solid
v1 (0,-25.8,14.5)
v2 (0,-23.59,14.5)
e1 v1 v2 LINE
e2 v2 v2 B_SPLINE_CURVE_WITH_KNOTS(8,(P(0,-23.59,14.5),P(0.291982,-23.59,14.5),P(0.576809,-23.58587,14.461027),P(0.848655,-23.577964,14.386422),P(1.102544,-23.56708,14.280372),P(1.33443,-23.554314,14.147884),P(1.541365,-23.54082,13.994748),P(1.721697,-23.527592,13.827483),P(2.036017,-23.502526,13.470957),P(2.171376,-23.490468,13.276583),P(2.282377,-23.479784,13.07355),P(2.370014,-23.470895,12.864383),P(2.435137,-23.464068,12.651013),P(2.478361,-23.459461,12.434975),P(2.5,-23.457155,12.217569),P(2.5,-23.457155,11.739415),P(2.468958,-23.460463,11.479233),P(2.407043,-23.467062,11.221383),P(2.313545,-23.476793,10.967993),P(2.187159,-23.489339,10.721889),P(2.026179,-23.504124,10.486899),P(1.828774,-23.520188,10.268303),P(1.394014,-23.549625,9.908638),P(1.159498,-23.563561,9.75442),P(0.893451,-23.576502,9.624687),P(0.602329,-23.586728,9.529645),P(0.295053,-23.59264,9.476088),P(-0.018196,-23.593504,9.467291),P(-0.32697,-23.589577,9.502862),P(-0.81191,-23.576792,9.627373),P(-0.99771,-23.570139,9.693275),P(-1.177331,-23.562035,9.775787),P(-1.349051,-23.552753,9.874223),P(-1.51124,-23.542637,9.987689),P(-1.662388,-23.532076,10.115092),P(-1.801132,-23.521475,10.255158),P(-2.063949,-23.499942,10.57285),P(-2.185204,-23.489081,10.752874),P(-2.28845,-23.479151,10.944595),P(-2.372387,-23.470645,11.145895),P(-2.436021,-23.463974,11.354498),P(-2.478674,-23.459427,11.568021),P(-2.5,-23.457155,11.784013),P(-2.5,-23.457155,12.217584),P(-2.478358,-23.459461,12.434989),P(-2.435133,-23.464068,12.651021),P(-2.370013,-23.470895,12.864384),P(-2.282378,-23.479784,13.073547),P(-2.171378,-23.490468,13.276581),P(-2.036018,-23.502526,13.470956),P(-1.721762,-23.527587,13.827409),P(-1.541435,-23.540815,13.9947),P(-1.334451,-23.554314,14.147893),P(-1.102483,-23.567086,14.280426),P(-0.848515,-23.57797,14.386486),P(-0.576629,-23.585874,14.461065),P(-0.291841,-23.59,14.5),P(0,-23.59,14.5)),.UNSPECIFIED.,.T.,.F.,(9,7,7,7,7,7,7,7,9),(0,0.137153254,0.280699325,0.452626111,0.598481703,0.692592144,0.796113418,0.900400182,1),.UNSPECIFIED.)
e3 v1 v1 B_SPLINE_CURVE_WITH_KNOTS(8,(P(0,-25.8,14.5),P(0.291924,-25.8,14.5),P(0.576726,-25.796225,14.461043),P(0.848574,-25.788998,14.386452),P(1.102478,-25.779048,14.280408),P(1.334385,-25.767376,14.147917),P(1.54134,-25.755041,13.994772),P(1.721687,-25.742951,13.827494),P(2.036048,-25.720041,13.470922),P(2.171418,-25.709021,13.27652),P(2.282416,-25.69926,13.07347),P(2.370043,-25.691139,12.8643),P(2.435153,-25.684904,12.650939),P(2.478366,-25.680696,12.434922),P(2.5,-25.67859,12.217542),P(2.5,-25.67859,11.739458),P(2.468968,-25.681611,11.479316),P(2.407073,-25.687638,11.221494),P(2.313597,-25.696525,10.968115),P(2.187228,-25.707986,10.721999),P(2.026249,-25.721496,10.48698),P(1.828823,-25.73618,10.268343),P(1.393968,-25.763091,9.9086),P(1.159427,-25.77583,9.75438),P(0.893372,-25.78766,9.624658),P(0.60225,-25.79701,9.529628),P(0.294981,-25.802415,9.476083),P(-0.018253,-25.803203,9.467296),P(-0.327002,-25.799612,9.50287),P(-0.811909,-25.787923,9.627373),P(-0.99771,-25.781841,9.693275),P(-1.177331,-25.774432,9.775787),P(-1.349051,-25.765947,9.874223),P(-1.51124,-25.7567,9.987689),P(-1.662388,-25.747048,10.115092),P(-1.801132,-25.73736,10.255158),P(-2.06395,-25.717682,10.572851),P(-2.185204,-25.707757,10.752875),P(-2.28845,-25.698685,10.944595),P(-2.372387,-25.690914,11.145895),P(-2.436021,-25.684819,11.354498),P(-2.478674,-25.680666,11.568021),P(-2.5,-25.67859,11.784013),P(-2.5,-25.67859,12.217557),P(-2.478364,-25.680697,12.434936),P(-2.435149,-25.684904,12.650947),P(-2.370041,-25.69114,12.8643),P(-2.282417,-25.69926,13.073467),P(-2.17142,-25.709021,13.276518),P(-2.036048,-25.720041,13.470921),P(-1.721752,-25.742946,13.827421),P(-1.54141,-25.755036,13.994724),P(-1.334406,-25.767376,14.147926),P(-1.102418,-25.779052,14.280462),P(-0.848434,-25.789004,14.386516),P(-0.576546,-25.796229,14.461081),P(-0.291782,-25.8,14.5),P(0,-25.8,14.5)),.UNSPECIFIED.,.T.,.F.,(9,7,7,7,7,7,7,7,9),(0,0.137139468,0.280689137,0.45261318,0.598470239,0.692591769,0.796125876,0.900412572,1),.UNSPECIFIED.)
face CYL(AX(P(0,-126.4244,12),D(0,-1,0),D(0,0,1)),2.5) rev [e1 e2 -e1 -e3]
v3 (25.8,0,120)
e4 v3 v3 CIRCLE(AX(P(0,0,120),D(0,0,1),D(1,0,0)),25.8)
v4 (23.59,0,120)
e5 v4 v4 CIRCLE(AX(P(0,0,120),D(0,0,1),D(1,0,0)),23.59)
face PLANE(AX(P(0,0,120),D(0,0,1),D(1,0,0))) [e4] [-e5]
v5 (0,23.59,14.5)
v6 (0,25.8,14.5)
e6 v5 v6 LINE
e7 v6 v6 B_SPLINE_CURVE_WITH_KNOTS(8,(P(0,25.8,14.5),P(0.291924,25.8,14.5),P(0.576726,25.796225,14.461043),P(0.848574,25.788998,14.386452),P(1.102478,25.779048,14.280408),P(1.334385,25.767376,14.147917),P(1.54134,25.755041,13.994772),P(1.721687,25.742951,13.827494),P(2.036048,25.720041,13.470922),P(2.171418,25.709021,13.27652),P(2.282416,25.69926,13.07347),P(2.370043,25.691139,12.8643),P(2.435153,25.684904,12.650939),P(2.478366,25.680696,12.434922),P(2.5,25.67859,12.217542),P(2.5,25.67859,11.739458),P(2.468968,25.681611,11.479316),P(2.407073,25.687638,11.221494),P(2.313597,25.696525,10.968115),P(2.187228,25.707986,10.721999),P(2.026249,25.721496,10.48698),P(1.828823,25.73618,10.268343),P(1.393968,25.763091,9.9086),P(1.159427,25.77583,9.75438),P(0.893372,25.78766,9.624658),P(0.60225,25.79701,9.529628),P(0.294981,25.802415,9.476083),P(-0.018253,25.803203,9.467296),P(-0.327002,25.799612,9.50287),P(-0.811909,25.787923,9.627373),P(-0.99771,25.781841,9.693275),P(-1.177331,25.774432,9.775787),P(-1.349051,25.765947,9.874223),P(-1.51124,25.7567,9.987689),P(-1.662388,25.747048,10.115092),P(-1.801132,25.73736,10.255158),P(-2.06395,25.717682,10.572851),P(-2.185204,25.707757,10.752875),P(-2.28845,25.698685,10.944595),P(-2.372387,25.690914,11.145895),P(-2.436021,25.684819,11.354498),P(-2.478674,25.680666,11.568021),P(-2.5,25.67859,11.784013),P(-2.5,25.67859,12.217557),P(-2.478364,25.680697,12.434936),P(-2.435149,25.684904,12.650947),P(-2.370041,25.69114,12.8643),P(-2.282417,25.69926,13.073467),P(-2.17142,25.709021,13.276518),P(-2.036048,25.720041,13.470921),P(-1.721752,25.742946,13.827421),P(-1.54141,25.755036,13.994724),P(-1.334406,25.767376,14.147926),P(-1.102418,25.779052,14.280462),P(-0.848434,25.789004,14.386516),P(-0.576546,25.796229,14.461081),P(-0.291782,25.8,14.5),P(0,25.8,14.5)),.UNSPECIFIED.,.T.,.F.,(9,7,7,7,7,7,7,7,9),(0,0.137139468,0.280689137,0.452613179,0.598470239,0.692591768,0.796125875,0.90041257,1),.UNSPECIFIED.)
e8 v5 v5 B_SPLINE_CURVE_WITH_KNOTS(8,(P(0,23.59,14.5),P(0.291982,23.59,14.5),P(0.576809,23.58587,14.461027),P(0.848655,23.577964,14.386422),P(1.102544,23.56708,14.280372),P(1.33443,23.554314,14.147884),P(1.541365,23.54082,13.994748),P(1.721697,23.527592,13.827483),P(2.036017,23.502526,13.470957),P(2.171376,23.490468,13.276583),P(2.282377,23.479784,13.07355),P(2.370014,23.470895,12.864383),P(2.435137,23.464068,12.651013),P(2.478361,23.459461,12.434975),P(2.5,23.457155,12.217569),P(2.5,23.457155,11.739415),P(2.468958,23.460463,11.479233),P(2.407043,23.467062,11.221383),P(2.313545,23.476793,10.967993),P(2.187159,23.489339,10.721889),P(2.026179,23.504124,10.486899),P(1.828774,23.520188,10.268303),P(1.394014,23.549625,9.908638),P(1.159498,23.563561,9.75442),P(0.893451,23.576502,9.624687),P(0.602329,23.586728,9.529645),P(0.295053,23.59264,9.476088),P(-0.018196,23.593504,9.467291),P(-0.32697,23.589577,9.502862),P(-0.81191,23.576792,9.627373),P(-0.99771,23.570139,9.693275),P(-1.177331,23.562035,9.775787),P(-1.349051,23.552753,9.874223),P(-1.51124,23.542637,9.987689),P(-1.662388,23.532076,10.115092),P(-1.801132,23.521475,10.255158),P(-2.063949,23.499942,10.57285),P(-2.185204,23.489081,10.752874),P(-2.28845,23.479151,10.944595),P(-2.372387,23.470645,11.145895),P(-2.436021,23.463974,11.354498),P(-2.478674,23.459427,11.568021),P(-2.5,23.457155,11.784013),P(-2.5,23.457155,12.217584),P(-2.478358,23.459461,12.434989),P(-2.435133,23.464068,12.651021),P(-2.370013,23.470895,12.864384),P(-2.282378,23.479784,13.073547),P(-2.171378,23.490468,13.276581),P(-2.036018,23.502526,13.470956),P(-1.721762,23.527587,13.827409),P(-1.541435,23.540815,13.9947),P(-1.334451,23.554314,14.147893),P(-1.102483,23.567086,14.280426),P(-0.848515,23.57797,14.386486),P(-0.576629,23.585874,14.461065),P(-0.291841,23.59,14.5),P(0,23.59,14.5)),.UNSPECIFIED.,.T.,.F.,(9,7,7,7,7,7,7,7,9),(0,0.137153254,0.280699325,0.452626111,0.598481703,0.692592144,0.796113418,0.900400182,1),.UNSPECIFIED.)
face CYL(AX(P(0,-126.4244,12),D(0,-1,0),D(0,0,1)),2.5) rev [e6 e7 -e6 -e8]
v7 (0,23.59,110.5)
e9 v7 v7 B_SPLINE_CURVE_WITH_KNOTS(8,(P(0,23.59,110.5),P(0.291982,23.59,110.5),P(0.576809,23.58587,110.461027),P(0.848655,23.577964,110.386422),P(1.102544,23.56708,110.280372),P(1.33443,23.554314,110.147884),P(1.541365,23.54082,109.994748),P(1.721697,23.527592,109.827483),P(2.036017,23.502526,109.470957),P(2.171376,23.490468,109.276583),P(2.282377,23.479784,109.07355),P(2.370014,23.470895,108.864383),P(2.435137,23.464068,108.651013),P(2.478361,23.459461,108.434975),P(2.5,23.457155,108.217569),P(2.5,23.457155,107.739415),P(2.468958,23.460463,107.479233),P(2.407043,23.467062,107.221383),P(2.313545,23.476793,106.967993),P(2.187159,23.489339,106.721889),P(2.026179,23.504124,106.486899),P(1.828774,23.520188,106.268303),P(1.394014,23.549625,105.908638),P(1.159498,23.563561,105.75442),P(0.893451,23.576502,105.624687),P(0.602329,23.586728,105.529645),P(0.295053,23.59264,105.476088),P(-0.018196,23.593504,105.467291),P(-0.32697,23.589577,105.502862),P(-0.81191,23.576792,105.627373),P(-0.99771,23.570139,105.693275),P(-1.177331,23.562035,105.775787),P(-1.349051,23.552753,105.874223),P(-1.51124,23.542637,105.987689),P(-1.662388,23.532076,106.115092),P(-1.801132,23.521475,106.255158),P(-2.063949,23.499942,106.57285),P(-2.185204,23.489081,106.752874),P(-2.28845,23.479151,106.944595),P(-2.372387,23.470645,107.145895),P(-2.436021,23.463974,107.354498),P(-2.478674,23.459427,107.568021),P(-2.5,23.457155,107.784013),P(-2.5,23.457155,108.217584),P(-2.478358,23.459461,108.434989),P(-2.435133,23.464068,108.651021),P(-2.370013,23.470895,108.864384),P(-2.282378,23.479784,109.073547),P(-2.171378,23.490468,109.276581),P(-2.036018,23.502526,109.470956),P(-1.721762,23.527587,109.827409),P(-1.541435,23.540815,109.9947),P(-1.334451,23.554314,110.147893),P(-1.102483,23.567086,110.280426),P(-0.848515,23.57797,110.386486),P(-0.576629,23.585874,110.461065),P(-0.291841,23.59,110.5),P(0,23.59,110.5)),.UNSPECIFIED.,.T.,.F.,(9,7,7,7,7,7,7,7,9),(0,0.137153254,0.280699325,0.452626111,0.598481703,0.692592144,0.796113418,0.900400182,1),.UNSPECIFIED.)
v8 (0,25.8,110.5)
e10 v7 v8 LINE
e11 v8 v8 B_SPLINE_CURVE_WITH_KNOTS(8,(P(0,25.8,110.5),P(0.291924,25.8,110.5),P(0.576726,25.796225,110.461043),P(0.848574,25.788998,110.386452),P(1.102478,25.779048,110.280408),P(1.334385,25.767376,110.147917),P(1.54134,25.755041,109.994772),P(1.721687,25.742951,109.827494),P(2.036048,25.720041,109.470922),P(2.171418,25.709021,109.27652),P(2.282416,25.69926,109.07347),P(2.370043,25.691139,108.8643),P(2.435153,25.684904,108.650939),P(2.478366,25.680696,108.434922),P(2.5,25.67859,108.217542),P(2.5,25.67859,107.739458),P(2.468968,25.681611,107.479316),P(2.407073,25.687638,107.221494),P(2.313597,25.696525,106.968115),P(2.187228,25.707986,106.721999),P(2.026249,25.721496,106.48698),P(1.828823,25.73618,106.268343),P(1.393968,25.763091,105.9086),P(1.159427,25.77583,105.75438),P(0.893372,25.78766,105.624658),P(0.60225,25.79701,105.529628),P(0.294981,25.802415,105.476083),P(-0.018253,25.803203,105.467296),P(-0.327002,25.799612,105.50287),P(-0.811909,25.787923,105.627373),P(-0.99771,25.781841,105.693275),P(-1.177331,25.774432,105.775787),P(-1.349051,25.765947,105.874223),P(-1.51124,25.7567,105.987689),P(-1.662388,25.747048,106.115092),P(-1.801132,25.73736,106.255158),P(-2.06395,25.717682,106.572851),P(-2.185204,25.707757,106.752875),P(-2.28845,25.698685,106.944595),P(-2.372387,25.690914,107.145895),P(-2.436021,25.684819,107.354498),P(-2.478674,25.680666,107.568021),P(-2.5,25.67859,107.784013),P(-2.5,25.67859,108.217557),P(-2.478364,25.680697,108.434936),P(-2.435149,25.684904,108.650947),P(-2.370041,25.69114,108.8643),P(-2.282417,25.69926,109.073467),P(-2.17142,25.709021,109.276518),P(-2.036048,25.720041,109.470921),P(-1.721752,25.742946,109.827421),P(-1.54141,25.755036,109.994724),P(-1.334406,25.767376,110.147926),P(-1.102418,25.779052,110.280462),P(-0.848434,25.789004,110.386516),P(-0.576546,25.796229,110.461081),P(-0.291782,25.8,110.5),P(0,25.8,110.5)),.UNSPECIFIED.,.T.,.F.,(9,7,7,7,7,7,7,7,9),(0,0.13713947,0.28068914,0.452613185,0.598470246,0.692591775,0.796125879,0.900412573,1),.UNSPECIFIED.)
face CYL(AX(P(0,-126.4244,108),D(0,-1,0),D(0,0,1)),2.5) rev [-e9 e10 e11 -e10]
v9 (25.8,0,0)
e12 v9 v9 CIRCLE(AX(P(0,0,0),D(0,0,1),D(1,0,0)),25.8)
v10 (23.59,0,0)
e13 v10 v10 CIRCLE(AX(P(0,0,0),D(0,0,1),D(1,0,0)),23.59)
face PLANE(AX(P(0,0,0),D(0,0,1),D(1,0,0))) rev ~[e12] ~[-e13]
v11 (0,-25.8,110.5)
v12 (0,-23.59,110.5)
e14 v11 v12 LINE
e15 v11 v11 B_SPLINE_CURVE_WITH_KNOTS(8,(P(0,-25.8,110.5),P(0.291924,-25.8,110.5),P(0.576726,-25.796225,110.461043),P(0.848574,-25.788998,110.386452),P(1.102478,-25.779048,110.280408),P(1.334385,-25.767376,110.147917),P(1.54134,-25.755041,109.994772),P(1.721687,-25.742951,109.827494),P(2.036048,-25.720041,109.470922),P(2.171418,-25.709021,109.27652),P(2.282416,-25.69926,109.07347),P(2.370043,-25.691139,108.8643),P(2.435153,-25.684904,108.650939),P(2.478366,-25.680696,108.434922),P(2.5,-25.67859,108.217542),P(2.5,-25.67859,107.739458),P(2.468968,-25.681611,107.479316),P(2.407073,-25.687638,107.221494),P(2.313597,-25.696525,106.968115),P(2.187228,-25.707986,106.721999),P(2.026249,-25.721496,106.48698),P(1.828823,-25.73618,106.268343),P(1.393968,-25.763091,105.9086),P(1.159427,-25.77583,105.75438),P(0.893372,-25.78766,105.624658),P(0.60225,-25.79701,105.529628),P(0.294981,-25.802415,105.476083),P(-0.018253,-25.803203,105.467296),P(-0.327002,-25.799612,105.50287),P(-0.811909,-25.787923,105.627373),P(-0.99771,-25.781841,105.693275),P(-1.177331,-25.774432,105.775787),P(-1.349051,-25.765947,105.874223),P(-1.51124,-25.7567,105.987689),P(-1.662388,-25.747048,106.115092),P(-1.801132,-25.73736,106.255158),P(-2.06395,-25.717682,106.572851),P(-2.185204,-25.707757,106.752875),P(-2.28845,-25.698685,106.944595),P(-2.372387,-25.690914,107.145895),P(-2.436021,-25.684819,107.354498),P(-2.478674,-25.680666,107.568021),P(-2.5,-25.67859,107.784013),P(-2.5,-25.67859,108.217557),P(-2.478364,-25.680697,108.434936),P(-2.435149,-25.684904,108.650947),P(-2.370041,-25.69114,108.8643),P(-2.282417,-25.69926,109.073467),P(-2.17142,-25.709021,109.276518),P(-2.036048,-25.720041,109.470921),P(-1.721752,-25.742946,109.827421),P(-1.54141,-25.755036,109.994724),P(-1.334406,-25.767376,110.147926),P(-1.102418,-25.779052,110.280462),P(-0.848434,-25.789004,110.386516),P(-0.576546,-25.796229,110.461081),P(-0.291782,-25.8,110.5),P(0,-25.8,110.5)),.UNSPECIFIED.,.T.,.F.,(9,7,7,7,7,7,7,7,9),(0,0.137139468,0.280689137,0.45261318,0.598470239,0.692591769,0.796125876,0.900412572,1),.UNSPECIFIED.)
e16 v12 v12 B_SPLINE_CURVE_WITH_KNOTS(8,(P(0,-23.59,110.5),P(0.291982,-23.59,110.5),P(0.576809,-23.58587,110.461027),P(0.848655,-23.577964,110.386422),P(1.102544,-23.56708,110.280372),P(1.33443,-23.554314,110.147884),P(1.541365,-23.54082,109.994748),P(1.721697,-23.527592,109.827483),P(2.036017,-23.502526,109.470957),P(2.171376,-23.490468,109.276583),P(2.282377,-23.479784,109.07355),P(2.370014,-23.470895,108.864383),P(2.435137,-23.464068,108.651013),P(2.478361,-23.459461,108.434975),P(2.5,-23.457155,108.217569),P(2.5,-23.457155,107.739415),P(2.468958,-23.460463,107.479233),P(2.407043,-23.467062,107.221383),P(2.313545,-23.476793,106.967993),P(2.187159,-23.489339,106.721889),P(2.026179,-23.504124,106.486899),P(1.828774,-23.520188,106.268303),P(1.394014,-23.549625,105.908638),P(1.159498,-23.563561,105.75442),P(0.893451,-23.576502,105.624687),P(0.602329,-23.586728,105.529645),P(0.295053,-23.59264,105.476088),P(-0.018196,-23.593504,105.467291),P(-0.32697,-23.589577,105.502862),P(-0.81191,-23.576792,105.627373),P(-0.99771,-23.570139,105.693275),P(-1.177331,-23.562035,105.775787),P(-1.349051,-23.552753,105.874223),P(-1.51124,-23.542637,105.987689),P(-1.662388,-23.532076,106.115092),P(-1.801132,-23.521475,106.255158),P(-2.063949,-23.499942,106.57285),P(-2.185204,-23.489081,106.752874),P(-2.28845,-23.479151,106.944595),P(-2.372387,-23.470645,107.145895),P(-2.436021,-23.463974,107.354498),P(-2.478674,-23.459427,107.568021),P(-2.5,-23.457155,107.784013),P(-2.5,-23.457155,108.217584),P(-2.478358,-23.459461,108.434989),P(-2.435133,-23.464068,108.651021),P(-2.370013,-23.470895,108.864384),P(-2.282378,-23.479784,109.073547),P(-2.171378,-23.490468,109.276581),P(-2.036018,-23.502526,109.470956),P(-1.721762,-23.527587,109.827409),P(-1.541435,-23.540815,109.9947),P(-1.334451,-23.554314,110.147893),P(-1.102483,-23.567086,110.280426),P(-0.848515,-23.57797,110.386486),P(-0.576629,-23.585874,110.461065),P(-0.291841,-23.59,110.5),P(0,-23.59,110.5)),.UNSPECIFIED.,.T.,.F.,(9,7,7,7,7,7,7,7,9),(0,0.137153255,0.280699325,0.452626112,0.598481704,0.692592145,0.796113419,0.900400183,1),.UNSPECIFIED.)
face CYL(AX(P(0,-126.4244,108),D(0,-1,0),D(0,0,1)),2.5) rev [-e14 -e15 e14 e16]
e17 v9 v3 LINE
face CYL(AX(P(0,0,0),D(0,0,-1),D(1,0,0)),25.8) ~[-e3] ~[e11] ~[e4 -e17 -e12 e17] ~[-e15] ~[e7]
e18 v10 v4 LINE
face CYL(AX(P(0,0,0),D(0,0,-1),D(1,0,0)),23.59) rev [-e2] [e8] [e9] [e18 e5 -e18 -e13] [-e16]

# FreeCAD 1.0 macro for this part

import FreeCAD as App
import Part
import Sketcher
from FreeCAD import Vector
Q = App.Units.Quantity

doc = App.newDocument("Part")
body = doc.addObject("PartDesign::Body", "Body")

# Sketch on XY plane
sketch1 = body.newObject("Sketcher::SketchObject", "Sketch")
sketch1.AttachmentSupport = (doc.getObject("XY_Plane"), [""])
sketch1.MapMode = "FlatFace"
sketch1.addGeometry([
    Part.Circle(Vector(0, 0, 0), Vector(0, 0, 1), 26),
    Part.Circle(Vector(0, 0, 0), Vector(0, 0, 1), 24),
], False)
sketch1.addConstraint([
    Sketcher.Constraint("Coincident", 0, 3, -1, 1),
    Sketcher.Constraint("Coincident", 1, 3, -1, 1),
    Sketcher.Constraint("Diameter", 0, Q("51.6 mm")),
    Sketcher.Constraint("Diameter", 1, Q("47.18 mm")),
])
pad1 = body.newObject("PartDesign::Pad", "Pad")
pad1.Profile = sketch1
pad1.Length = 120

# Sketch on XZ plane
sketch2 = body.newObject("Sketcher::SketchObject", "Sketch001")
sketch2.AttachmentSupport = (doc.getObject("XZ_Plane"), [""])
sketch2.MapMode = "FlatFace"
sketch2.addGeometry([
    Part.Circle(Vector(0, 108, 0), Vector(0, 0, 1), 2.5),
    Part.Circle(Vector(0, 12, 0), Vector(0, 0, 1), 2.5),
], False)
sketch2.addConstraint([
    Sketcher.Constraint("Equal", 0, 1),
    Sketcher.Constraint("PointOnObject", 0, 3, -2),
    Sketcher.Constraint("PointOnObject", 1, 3, -2),
    Sketcher.Constraint("Diameter", 0, Q("5 mm")),
    Sketcher.Constraint("DistanceY", -1, 1, 0, 3, Q("108 mm")),
    Sketcher.Constraint("DistanceY", -1, 1, 1, 3, Q("12 mm")),
])
pocket1 = body.newObject("PartDesign::Pocket", "Pocket")
pocket1.Profile = sketch2
pocket1.Type = "ThroughAll"
pocket1.Midplane = True

doc.recompute()
